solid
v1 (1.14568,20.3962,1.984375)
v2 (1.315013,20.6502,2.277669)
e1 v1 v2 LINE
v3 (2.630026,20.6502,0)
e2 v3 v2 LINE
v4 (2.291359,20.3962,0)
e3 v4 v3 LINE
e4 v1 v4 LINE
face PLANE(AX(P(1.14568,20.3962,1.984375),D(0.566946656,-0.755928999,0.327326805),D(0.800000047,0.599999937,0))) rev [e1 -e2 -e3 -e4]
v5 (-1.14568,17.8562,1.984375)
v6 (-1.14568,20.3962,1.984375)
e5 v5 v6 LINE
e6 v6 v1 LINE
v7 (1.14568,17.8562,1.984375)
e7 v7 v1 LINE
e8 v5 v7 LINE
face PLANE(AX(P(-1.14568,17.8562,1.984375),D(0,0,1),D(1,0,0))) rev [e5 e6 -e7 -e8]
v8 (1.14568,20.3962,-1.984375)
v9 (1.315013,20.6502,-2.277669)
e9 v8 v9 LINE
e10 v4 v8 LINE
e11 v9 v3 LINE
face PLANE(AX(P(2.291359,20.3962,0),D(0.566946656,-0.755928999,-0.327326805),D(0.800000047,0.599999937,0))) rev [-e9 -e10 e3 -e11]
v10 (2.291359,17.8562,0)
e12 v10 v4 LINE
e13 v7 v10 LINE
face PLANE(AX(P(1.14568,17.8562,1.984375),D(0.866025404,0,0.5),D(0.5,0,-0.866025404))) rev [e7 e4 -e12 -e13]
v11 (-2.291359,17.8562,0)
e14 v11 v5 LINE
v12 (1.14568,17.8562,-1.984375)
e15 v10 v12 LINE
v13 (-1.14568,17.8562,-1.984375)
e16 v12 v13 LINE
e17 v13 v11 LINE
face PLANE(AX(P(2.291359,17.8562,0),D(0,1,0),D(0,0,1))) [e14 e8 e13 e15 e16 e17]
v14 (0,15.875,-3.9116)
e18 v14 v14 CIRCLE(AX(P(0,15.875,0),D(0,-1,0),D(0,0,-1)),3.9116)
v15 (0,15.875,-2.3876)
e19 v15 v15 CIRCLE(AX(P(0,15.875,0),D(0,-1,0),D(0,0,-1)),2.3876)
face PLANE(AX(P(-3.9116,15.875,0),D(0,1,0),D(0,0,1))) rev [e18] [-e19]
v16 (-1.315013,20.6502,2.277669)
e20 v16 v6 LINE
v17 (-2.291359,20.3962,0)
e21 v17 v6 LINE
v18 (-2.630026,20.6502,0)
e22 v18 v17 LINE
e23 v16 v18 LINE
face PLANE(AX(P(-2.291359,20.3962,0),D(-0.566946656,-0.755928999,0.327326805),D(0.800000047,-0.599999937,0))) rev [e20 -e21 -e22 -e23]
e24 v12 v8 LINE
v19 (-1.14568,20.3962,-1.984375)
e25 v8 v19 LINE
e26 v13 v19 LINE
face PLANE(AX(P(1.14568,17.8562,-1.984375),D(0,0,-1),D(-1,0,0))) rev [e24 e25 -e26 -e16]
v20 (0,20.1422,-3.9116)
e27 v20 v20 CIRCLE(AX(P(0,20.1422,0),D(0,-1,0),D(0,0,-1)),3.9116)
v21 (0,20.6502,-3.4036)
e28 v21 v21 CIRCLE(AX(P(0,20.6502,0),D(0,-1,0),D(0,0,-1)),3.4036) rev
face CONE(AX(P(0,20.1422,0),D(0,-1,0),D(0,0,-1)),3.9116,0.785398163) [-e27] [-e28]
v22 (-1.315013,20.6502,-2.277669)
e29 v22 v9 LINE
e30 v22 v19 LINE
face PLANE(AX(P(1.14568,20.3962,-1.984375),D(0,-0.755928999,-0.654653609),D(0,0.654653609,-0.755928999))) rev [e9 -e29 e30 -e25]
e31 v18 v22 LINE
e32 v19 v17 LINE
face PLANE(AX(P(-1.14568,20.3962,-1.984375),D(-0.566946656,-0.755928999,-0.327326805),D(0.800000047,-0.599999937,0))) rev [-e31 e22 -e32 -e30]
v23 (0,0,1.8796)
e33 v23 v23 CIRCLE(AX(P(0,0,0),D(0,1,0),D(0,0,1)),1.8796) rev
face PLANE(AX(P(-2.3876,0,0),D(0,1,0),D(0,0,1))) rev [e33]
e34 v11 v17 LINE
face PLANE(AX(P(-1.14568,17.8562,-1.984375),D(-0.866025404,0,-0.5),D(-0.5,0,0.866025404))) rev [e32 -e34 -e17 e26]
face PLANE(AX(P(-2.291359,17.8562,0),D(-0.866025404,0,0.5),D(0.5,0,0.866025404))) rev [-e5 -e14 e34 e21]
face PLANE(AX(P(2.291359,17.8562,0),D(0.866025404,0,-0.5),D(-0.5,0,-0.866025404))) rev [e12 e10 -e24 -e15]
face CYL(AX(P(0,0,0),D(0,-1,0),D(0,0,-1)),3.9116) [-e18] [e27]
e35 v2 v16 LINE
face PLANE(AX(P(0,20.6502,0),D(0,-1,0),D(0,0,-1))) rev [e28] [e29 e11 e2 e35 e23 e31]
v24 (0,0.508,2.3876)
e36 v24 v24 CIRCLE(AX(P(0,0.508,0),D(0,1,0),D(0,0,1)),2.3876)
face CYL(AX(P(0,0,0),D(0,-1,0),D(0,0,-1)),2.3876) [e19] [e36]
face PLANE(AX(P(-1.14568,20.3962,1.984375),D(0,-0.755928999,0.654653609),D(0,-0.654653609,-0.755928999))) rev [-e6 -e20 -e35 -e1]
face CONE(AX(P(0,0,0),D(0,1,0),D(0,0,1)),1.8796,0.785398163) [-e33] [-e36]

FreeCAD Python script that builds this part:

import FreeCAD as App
import Part
import Sketcher
from FreeCAD import Vector
Q = App.Units.Quantity


def edges_at(feature, points):
    """Names of the edges that pass closest to the given points."""
    edges = feature.Shape.Edges
    near = lambda p: min(range(len(edges)), key=lambda i: edges[i].distToShape(Part.Vertex(*p))[0])
    return sorted({f"Edge{near(p) + 1}" for p in points})

doc = App.newDocument("Part")
params = doc.addObject("Spreadsheet::Sheet", "Params")
for row, (alias, value) in enumerate([
    ("sketch1_width", "0.06 in"),
    ("sketch1_width2", "0.154 in"),
    ("sketch1_height", "0.813 in"),
    ("sketch1_height2", "0.188 in"),
    ("revolution_angle", "360 deg"),
    ("pocket1_length", "0.11 in"),
    ("chamfer_size", "0.02 in"),
    ("chamfer2_size", "0.293294 mm"),
    ("chamfer2_size2", "0.01 in"),
], start=1):
    params.set(f"A{row}", alias)
    params.set(f"B{row}", "=" + value)
    params.setAlias(f"B{row}", alias)

body = doc.addObject("PartDesign::Body", "Body")

# Sketch on XY plane
sketch1 = body.newObject("Sketcher::SketchObject", "Sketch")
sketch1.AttachmentSupport = (doc.getObject("XY_Plane"), [""])
sketch1.MapMode = "FlatFace"
sketch1.addGeometry(Part.LineSegment(Vector(0, 0, 0), Vector(0, 20.7, 0)), False)
sketch1.addGeometry(Part.LineSegment(Vector(0, 20.7, 0), Vector(-3.9, 20.7, 0)), False)
sketch1.addGeometry(Part.LineSegment(Vector(-3.9, 20.7, 0), Vector(-3.9, 15.9, 0)), False)
sketch1.addGeometry(Part.LineSegment(Vector(-3.9, 15.9, 0), Vector(-2.4, 15.9, 0)), False)
sketch1.addGeometry(Part.LineSegment(Vector(-2.4, 15.9, 0), Vector(-2.4, 0, 0)), False)
sketch1.addGeometry(Part.LineSegment(Vector(-2.4, 0, 0), Vector(0, 0, 0)), False)
sketch1.addConstraint(Sketcher.Constraint("Coincident", 0, 2, 1, 1))
sketch1.addConstraint(Sketcher.Constraint("Coincident", 1, 2, 2, 1))
sketch1.addConstraint(Sketcher.Constraint("Coincident", 2, 2, 3, 1))
sketch1.addConstraint(Sketcher.Constraint("Coincident", 3, 2, 4, 1))
sketch1.addConstraint(Sketcher.Constraint("Coincident", 4, 2, 5, 1))
sketch1.addConstraint(Sketcher.Constraint("Coincident", 5, 2, 0, 1))
sketch1.addConstraint(Sketcher.Constraint("Vertical", 0))
sketch1.addConstraint(Sketcher.Constraint("Horizontal", 1))
sketch1.addConstraint(Sketcher.Constraint("Vertical", 2))
sketch1.addConstraint(Sketcher.Constraint("Horizontal", 3))
sketch1.addConstraint(Sketcher.Constraint("Vertical", 4))
sketch1.addConstraint(Sketcher.Constraint("Horizontal", 5))
sketch1.addConstraint(Sketcher.Constraint("Coincident", 5, 2, -1, 1))
sketch1.addConstraint(Sketcher.Constraint("DistanceX", 3, 1, 3, 2, Q("0.06 in")))
sketch1.addConstraint(Sketcher.Constraint("DistanceX", 1, 2, 1, 1, Q("0.154 in")))
sketch1.addConstraint(Sketcher.Constraint("DistanceY", 0, 1, 0, 2, Q("0.813 in")))
sketch1.addConstraint(Sketcher.Constraint("DistanceY", 2, 2, 2, 1, Q("0.188 in")))
sketch1.setExpression("Constraints[13]", "Params.sketch1_width")
sketch1.setExpression("Constraints[14]", "Params.sketch1_width2")
sketch1.setExpression("Constraints[15]", "Params.sketch1_height")
sketch1.setExpression("Constraints[16]", "Params.sketch1_height2")
revolution = body.newObject("PartDesign::Revolution", "Revolution")
revolution.Profile = sketch1
revolution.ReferenceAxis = (sketch1, ["V_Axis"])
revolution.setExpression("Angle", "Params.revolution_angle")

# Sketch on XZ plane
sketch2 = body.newObject("Sketcher::SketchObject", "Sketch001")
sketch2.AttachmentSupport = (doc.getObject("XZ_Plane"), [""])
sketch2.MapMode = "FlatFace"
sketch2.AttachmentOffset = App.Placement(Vector(0, 0, -0.813 * 25.4), App.Rotation())
sketch2.addGeometry(Part.LineSegment(Vector(2.3, 0, 0), Vector(1.1, -2, 0)), False)
sketch2.addGeometry(Part.LineSegment(Vector(1.1, -2, 0), Vector(-1.1, -2, 0)), False)
sketch2.addGeometry(Part.LineSegment(Vector(-1.1, -2, 0), Vector(-2.3, 0, 0)), False)
sketch2.addGeometry(Part.LineSegment(Vector(-2.3, 0, 0), Vector(-1.1, 2, 0)), False)
sketch2.addGeometry(Part.LineSegment(Vector(-1.1, 2, 0), Vector(1.1, 2, 0)), False)
sketch2.addGeometry(Part.LineSegment(Vector(1.1, 2, 0), Vector(2.3, 0, 0)), False)
sketch2.addConstraint(Sketcher.Constraint("Coincident", 0, 2, 1, 1))
sketch2.addConstraint(Sketcher.Constraint("Coincident", 1, 2, 2, 1))
sketch2.addConstraint(Sketcher.Constraint("Coincident", 2, 2, 3, 1))
sketch2.addConstraint(Sketcher.Constraint("Coincident", 3, 2, 4, 1))
sketch2.addConstraint(Sketcher.Constraint("Coincident", 4, 2, 5, 1))
sketch2.addConstraint(Sketcher.Constraint("Coincident", 5, 2, 0, 1))
sketch2.addConstraint(Sketcher.Constraint("Horizontal", 1))
sketch2.addConstraint(Sketcher.Constraint("Horizontal", 4))
sketch2.addConstraint(Sketcher.Constraint("Symmetric", 0, 2, 3, 2, -1, 1))
sketch2.addConstraint(Sketcher.Constraint("Symmetric", 2, 2, 5, 2, -1, 1))
sketch2.addConstraint(Sketcher.Constraint("PointOnObject", 2, 2, -1))
sketch2.addConstraint(Sketcher.Constraint("Parallel", 2, 5))
sketch2.addConstraint(Sketcher.Constraint("Vertical", 1, 2, 3, 2))
sketch2.addConstraint(Sketcher.Constraint("Angle", 0, Q("-120 deg")))
sketch2.addConstraint(Sketcher.Constraint("DistanceY", 0, 2, -1, 1, Q("0.078125 in")))
sketch2.addConstraint(Sketcher.Constraint("DistanceX", 1, 2, 1, 1, 2.291359))
pocket1 = body.newObject("PartDesign::Pocket", "Pocket")
pocket1.Profile = sketch2
pocket1.setExpression("Length", "Params.pocket1_length")
pocket1.Reversed = True
doc.recompute()

chamfer = body.newObject("PartDesign::Chamfer", "Chamfer")
chamfer.Base = (pocket1, edges_at(pocket1, [(2.388, 0, 0), (3.912, 20.65, 0)]))
chamfer.setExpression("Size", "Params.chamfer_size")
doc.recompute()

chamfer2 = body.newObject("PartDesign::Chamfer", "Chamfer001")
chamfer2.Base = (chamfer, edges_at(chamfer, [
    (1.719, 20.65, 0.992),
    (1.719, 20.65, -0.992),
    (0, 20.65, -1.984),
    (-1.719, 20.65, -0.992),
    (-1.719, 20.65, 0.992),
    (0, 20.65, 1.984),
]))
chamfer2.ChamferType = "Two distances"
chamfer2.setExpression("Size", "Params.chamfer2_size")
chamfer2.setExpression("Size2", "Params.chamfer2_size2")

doc.recompute()
